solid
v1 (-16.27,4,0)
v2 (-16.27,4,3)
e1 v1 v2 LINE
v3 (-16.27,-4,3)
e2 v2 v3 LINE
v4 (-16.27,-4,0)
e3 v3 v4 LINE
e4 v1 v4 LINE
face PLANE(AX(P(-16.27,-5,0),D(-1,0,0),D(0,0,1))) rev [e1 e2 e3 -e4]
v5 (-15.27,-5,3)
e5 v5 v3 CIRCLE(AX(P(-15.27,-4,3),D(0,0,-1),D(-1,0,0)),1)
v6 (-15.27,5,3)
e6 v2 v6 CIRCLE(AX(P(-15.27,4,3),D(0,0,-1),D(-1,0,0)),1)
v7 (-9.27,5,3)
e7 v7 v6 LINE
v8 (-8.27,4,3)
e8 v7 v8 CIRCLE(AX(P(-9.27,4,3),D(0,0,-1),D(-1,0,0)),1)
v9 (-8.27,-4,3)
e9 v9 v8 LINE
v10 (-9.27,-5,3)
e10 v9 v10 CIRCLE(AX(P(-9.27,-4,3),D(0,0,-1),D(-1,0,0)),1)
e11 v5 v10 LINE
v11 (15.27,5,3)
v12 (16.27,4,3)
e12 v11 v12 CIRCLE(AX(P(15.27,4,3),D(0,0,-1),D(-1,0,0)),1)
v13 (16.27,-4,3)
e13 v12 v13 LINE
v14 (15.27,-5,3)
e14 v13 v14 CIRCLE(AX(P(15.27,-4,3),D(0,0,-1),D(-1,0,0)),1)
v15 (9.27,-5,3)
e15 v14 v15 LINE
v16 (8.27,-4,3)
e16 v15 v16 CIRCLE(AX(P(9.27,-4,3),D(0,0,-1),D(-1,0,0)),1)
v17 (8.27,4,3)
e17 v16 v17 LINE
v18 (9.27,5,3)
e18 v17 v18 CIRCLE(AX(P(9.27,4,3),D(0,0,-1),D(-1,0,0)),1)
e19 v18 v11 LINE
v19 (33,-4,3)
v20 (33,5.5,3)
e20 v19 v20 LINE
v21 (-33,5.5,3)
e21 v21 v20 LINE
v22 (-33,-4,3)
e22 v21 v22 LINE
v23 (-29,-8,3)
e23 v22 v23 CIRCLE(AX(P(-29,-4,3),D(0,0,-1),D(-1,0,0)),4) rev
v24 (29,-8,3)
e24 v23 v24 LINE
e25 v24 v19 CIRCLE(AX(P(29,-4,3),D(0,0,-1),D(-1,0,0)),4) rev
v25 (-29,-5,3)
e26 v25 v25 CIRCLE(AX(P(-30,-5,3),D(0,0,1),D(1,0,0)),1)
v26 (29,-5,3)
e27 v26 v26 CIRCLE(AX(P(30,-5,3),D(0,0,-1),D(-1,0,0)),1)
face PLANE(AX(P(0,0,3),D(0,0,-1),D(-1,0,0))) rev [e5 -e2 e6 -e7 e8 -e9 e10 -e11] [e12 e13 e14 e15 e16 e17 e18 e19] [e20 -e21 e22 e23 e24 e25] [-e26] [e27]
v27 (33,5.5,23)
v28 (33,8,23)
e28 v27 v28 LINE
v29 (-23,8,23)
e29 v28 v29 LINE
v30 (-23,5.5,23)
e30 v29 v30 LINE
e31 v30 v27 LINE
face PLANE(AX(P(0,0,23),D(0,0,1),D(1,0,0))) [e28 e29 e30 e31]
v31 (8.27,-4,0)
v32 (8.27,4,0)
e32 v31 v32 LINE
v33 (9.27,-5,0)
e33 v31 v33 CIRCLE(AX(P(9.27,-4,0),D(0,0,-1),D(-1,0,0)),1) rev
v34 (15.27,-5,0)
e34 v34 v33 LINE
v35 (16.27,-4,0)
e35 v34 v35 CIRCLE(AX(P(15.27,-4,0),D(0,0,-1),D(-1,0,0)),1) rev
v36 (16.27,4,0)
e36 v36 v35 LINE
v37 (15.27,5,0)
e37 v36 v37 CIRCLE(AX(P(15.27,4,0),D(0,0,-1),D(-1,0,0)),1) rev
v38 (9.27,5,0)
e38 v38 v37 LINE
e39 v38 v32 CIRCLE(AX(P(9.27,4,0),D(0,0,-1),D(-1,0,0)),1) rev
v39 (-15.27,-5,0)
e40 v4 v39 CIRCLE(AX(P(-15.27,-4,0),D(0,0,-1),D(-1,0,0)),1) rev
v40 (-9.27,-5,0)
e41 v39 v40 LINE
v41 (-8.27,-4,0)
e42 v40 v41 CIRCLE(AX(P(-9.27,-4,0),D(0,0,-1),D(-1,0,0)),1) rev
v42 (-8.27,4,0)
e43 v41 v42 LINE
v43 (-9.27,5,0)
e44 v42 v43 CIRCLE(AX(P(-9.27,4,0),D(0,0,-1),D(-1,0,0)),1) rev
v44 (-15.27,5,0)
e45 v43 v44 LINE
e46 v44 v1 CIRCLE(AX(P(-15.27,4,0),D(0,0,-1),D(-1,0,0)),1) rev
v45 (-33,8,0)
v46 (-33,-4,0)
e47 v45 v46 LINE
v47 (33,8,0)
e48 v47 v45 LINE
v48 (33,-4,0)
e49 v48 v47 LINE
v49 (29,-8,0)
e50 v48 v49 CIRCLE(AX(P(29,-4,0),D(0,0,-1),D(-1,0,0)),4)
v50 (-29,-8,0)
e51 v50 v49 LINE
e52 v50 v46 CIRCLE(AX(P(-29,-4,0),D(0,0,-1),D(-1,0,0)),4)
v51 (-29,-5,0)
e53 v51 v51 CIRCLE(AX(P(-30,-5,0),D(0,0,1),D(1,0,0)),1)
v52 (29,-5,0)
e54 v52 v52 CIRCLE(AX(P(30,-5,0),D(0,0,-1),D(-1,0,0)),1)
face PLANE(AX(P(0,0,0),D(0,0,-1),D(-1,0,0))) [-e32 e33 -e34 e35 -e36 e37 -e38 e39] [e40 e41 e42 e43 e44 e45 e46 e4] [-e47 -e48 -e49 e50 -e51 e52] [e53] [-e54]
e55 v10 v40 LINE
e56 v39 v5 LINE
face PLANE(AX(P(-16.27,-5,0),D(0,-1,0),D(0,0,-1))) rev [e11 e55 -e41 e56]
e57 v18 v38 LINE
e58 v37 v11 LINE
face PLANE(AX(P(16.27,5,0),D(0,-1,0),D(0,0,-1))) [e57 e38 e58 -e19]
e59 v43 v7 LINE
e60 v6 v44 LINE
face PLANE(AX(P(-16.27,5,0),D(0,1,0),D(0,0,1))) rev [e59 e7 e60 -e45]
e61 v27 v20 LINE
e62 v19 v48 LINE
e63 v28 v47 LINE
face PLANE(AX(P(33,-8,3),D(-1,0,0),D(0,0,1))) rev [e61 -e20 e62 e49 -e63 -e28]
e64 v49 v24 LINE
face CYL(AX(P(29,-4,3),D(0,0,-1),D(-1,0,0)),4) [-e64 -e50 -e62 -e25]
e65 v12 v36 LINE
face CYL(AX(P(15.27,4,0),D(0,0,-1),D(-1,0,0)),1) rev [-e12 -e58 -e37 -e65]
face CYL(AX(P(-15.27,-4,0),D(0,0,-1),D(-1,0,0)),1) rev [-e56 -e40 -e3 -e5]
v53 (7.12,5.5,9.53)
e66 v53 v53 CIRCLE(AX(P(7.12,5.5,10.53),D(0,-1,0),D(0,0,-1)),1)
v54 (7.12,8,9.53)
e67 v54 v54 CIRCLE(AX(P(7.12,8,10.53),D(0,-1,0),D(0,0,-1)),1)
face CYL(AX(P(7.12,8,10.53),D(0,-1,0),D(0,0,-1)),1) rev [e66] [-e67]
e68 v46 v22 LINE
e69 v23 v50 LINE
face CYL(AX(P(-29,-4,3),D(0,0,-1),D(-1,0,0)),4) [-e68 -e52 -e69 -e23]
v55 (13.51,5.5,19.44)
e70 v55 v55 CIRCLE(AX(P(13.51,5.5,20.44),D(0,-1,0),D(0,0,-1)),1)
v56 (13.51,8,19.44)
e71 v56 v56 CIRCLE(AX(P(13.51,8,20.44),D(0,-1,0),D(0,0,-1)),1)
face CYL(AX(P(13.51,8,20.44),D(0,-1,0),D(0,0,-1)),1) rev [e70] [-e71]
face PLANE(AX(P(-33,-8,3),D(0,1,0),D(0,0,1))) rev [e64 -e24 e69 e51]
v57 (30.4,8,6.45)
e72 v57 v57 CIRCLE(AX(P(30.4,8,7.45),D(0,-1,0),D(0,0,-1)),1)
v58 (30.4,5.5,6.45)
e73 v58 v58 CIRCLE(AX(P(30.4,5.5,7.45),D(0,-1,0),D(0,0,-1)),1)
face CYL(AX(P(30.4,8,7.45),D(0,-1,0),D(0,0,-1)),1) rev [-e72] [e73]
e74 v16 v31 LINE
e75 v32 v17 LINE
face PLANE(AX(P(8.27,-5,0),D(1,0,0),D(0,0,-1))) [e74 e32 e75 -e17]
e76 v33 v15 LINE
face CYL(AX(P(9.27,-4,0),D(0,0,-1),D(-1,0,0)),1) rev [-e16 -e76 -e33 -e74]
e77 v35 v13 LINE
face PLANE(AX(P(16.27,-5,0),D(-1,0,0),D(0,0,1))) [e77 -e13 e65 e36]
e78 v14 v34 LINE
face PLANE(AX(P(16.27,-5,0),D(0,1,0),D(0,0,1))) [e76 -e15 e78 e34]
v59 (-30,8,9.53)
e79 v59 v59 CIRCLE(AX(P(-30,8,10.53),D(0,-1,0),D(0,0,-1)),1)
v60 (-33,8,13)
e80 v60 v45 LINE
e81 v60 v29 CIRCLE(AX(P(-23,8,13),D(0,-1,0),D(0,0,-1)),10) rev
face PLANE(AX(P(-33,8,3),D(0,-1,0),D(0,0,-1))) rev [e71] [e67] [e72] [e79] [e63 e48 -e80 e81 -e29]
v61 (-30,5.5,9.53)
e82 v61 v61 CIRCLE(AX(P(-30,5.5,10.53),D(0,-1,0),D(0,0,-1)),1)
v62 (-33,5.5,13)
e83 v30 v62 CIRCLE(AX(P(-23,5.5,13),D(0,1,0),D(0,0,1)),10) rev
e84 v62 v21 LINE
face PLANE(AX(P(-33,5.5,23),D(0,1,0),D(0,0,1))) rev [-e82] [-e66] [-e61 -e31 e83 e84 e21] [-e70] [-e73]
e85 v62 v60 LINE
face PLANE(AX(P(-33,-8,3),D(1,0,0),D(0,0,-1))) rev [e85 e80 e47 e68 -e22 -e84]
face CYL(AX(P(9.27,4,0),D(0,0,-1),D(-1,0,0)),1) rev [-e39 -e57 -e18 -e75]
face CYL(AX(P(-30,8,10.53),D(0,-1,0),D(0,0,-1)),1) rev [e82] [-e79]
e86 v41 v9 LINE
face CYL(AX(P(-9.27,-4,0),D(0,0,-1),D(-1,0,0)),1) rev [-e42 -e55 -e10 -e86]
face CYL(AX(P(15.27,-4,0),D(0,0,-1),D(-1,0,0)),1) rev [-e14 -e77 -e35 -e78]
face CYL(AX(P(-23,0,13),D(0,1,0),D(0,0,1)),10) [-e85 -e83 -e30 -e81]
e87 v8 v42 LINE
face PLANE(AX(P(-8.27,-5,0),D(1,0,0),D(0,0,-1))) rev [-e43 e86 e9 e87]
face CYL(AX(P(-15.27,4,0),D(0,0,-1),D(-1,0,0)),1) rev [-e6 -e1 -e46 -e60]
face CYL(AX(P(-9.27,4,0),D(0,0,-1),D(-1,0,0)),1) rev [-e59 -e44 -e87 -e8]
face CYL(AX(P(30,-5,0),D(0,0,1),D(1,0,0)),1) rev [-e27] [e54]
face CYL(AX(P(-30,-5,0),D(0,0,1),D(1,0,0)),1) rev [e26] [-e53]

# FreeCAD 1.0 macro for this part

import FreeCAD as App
import Part
import Sketcher

V = App.Vector
Q = App.Units.Quantity


def edges_at(feature, points):
    """Names of the edges that pass closest to the given points."""
    edges = feature.Shape.Edges
    near = lambda p: min(range(len(edges)), key=lambda i: edges[i].distToShape(Part.Vertex(*p))[0])
    return sorted({f"Edge{near(p) + 1}" for p in points})

doc = App.newDocument("Part")
body = doc.addObject("PartDesign::Body", "Body")

# Sketch on XY plane
sketch1 = doc.addObject("Sketcher::SketchObject", "Sketch")
body.addObject(sketch1)
sketch1.AttachmentSupport = (doc.XY_Plane, [""])
sketch1.MapMode = "FlatFace"
sketch1.addGeometry([
    Part.LineSegment(V(-33, 8, 0), V(-33, -8, 0)),
    Part.LineSegment(V(-33, -8, 0), V(33, -8, 0)),
    Part.LineSegment(V(33, -8, 0), V(33, 8, 0)),
    Part.LineSegment(V(33, 8, 0), V(-33, 8, 0)),
], False)
sketch1.addConstraint([
    Sketcher.Constraint("Coincident", 0, 2, 1, 1),
    Sketcher.Constraint("Coincident", 1, 2, 2, 1),
    Sketcher.Constraint("Coincident", 2, 2, 3, 1),
    Sketcher.Constraint("Coincident", 3, 2, 0, 1),
    Sketcher.Constraint("Vertical", 0),
    Sketcher.Constraint("Horizontal", 1),
    Sketcher.Constraint("Vertical", 2),
    Sketcher.Constraint("Horizontal", 3),
    Sketcher.Constraint("Symmetric", 0, 2, 2, 2, -1, 1),
    Sketcher.Constraint("DistanceX", 1, 1, 1, 2, Q("66 mm")),
    Sketcher.Constraint("DistanceY", 0, 2, 0, 1, Q("16 mm")),
])
pad1 = doc.addObject("PartDesign::Pad", "Pad")
body.addObject(pad1)
pad1.Profile = sketch1
pad1.Length = 3

# Sketch on XY plane
sketch2 = doc.addObject("Sketcher::SketchObject", "Sketch001")
body.addObject(sketch2)
sketch2.AttachmentSupport = (doc.XY_Plane, [""])
sketch2.MapMode = "FlatFace"
sketch2.AttachmentOffset = App.Placement(V(0, 0, 3), App.Rotation())
sketch2.addGeometry([
    Part.LineSegment(V(-33, 8, 0), V(-33, 5.5, 0)),
    Part.LineSegment(V(-33, 5.5, 0), V(33, 5.5, 0)),
    Part.LineSegment(V(33, 5.5, 0), V(33, 8, 0)),
    Part.LineSegment(V(33, 8, 0), V(-33, 8, 0)),
], False)
sketch2.addConstraint([
    Sketcher.Constraint("Coincident", 0, 2, 1, 1),
    Sketcher.Constraint("Coincident", 1, 2, 2, 1),
    Sketcher.Constraint("Coincident", 2, 2, 3, 1),
    Sketcher.Constraint("Coincident", 3, 2, 0, 1),
    Sketcher.Constraint("Vertical", 0),
    Sketcher.Constraint("Horizontal", 1),
    Sketcher.Constraint("Vertical", 2),
    Sketcher.Constraint("Horizontal", 3),
    Sketcher.Constraint("DistanceX", 1, 1, 1, 2, Q("66 mm")),
    Sketcher.Constraint("DistanceY", 0, 2, 0, 1, Q("2.5 mm")),
    Sketcher.Constraint("DistanceX", 0, 2, -1, 1, Q("33 mm")),
    Sketcher.Constraint("DistanceY", -1, 1, 2, 2, Q("8 mm")),
])
pad2 = doc.addObject("PartDesign::Pad", "Pad001")
body.addObject(pad2)
pad2.Profile = sketch2
pad2.Length = 20

# Sketch on XZ plane
sketch3 = doc.addObject("Sketcher::SketchObject", "Sketch002")
body.addObject(sketch3)
sketch3.AttachmentSupport = (doc.XZ_Plane, [""])
sketch3.MapMode = "FlatFace"
sketch3.AttachmentOffset = App.Placement(V(0, 0, -5.5), App.Rotation())
sketch3.addGeometry([
    Part.Circle(V(-30, 10.53, 0), V(0, 0, 1), 1),
    Part.Circle(V(7.12, 10.53, 0), V(0, 0, 1), 1),
    Part.Circle(V(30.4, 7.45, 0), V(0, 0, 1), 1),
    Part.Circle(V(13.51, 20.44, 0), V(0, 0, 1), 1),
], False)
sketch3.addConstraint([
    Sketcher.Constraint("Equal", 0, 1),
    Sketcher.Constraint("Equal", 1, 2),
    Sketcher.Constraint("Equal", 2, 3),
    Sketcher.Constraint("Horizontal", 0, 3, 1, 3),
    Sketcher.Constraint("Diameter", 0, Q("2 mm")),
    Sketcher.Constraint("DistanceX", 0, 3, -1, 1, Q("30 mm")),
    Sketcher.Constraint("DistanceX", -1, 1, 2, 3, Q("30.4 mm")),
    Sketcher.Constraint("DistanceY", -1, 1, 0, 3, Q("10.53 mm")),
    Sketcher.Constraint("DistanceX", -1, 1, 1, 3, Q("7.12 mm")),
    Sketcher.Constraint("DistanceY", -1, 1, 2, 3, Q("7.45 mm")),
    Sketcher.Constraint("DistanceX", -1, 1, 3, 3, Q("13.51 mm")),
    Sketcher.Constraint("DistanceY", -1, 1, 3, 3, Q("20.44 mm")),
])
pocket1 = doc.addObject("PartDesign::Pocket", "Pocket")
body.addObject(pocket1)
pocket1.Profile = sketch3
pocket1.Type = "ThroughAll"

# Sketch on XY plane
sketch4 = doc.addObject("Sketcher::SketchObject", "Sketch003")
body.addObject(sketch4)
sketch4.AttachmentSupport = (doc.XY_Plane, [""])
sketch4.MapMode = "FlatFace"
sketch4.AttachmentOffset = App.Placement(V(0, 0, 3), App.Rotation())
sketch4.addGeometry([
    Part.Circle(V(-30, -5, 0), V(0, 0, 1), 1),  # 0
    Part.LineSegment(V(-16.27, 5, 0), V(-16.27, -5, 0)),  # 1
    Part.LineSegment(V(-16.27, -5, 0), V(-8.27, -5, 0)),  # 2
    Part.LineSegment(V(-8.27, -5, 0), V(-8.27, 5, 0)),  # 3
    Part.LineSegment(V(-8.27, 5, 0), V(-16.27, 5, 0)),  # 4
], False)
sketch4.addConstraint([
    Sketcher.Constraint("Coincident", 1, 2, 2, 1),
    Sketcher.Constraint("Coincident", 2, 2, 3, 1),
    Sketcher.Constraint("Coincident", 3, 2, 4, 1),
    Sketcher.Constraint("Coincident", 4, 2, 1, 1),
    Sketcher.Constraint("Vertical", 1),
    Sketcher.Constraint("Horizontal", 2),
    Sketcher.Constraint("Vertical", 3),
    Sketcher.Constraint("Horizontal", 4),
    Sketcher.Constraint("Horizontal", 0, 3, 1, 2),
    Sketcher.Constraint("Diameter", 0, Q("2 mm")),
    Sketcher.Constraint("DistanceX", 2, 1, 2, 2, Q("8 mm")),
    Sketcher.Constraint("DistanceY", 1, 2, 1, 1, Q("10 mm")),
    Sketcher.Constraint("DistanceX", 0, 3, -1, 1, Q("30 mm")),
    Sketcher.Constraint("DistanceY", 0, 3, -1, 1, Q("5 mm")),
    Sketcher.Constraint("DistanceX", 1, 2, -1, 1, Q("16.27 mm")),
])
pocket2 = doc.addObject("PartDesign::Pocket", "Pocket001")
body.addObject(pocket2)
pocket2.Profile = sketch4
pocket2.Type = "ThroughAll"
doc.recompute()

fillet = doc.addObject("PartDesign::Fillet", "Fillet")
body.addObject(fillet)
fillet.Base = (pocket2, edges_at(pocket2, [(-33, 6.75, 23)]))
fillet.Radius = 10
doc.recompute()

fillet2 = doc.addObject("PartDesign::Fillet", "Fillet001")
body.addObject(fillet2)
fillet2.Base = (fillet, edges_at(fillet, [(33, -8, 1.5), (-33, -8, 1.5)]))
fillet2.Radius = 4
doc.recompute()

mirrored = doc.addObject("PartDesign::Mirrored", "Mirrored")
body.addObject(mirrored)
mirrored.Originals = [pocket2]
mirrored.MirrorPlane = (doc.YZ_Plane, [""])
body.Tip = mirrored
doc.recompute()

fillet3 = doc.addObject("PartDesign::Fillet", "Fillet002")
body.addObject(fillet3)
fillet3.Base = (mirrored, edges_at(mirrored, [
    (-8.27, 5, 1.5),
    (-8.27, -5, 1.5),
    (-16.27, -5, 1.5),
    (-16.27, 5, 1.5),
    (8.27, -5, 1.5),
    (8.27, 5, 1.5),
    (16.27, 5, 1.5),
    (16.27, -5, 1.5),
]))
fillet3.Radius = 1

doc.recompute()
